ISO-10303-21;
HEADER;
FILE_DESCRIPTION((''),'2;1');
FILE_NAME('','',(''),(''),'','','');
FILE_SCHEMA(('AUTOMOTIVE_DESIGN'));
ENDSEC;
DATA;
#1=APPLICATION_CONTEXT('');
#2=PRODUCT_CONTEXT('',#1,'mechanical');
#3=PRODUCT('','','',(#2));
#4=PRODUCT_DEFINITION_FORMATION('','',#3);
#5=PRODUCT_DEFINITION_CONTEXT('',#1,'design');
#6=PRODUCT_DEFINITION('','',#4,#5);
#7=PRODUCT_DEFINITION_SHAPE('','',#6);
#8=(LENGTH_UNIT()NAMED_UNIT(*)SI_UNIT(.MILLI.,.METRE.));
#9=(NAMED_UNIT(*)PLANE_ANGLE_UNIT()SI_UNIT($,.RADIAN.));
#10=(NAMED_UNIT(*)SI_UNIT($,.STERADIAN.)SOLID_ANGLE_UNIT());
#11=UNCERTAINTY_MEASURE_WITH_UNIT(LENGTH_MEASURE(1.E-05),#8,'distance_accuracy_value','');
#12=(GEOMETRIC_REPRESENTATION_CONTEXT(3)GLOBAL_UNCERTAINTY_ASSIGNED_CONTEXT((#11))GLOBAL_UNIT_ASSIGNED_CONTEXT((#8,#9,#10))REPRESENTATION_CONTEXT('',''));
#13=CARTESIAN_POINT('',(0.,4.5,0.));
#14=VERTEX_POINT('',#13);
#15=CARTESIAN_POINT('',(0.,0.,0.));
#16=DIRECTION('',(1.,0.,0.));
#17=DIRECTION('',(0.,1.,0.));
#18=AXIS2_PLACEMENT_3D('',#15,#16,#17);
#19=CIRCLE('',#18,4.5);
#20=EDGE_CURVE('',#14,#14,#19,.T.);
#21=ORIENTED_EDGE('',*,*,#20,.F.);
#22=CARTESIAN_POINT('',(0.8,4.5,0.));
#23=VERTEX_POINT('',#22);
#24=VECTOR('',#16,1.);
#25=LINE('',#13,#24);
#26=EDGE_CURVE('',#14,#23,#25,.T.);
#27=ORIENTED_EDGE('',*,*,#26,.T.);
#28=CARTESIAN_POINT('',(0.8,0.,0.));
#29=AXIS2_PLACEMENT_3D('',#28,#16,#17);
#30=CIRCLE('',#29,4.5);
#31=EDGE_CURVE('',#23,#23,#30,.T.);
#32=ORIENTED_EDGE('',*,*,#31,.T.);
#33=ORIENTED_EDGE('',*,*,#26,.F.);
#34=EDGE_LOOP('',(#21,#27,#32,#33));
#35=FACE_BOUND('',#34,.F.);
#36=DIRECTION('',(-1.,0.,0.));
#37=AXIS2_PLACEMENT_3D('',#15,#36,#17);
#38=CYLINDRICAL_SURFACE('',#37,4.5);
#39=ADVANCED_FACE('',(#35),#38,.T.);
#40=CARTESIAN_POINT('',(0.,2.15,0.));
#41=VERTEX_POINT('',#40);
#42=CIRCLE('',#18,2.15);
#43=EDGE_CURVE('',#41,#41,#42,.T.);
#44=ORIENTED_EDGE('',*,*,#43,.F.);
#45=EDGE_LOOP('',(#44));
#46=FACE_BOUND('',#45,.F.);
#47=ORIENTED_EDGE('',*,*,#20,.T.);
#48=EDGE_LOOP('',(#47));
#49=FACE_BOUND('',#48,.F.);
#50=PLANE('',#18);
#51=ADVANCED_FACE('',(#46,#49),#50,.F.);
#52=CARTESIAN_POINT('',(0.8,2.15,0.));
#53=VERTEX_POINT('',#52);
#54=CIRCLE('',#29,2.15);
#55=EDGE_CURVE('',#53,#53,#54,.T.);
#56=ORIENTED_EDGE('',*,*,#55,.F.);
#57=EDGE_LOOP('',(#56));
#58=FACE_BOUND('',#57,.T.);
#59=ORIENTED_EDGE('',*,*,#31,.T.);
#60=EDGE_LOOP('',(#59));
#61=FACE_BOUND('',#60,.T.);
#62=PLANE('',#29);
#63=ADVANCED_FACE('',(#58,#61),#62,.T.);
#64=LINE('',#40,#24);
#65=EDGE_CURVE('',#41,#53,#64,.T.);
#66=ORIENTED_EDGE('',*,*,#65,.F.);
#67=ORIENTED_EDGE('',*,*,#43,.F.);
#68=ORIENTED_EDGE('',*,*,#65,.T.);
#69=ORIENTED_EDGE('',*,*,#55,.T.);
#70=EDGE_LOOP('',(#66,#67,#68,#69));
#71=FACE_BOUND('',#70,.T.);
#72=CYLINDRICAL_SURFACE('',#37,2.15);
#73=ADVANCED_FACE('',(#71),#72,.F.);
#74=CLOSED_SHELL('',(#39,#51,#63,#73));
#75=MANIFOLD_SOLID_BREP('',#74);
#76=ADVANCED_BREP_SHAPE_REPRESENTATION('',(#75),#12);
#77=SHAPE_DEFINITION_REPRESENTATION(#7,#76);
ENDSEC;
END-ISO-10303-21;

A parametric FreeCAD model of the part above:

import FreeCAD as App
import Part
import Sketcher
Q = App.Units.Quantity

doc = App.newDocument("Part")
body = doc.addObject("PartDesign::Body", "Body")

sketch1 = body.newObject("Sketcher::SketchObject", "Sketch")
sketch1.AttachmentSupport = (doc.getObject("YZ_Plane"), [""])
sketch1.MapMode = "FlatFace"
sketch1.addGeometry(Part.Circle(App.Vector(0, 0, 0), App.Vector(0, 0, 1), 4.5), False)
sketch1.addGeometry(Part.Circle(App.Vector(0, 0, 0), App.Vector(0, 0, 1), 2.1), False)
sketch1.addConstraint(Sketcher.Constraint("Coincident", 0, 3, -1, 1))
sketch1.addConstraint(Sketcher.Constraint("Coincident", 1, 3, -1, 1))
sketch1.addConstraint(Sketcher.Constraint("Diameter", 0, Q("9 mm")))
sketch1.addConstraint(Sketcher.Constraint("Diameter", 1, Q("4.3 mm")))
pad1 = body.newObject("PartDesign::Pad", "Pad")
pad1.Profile = sketch1
pad1.Length = 0.8

doc.recompute()
